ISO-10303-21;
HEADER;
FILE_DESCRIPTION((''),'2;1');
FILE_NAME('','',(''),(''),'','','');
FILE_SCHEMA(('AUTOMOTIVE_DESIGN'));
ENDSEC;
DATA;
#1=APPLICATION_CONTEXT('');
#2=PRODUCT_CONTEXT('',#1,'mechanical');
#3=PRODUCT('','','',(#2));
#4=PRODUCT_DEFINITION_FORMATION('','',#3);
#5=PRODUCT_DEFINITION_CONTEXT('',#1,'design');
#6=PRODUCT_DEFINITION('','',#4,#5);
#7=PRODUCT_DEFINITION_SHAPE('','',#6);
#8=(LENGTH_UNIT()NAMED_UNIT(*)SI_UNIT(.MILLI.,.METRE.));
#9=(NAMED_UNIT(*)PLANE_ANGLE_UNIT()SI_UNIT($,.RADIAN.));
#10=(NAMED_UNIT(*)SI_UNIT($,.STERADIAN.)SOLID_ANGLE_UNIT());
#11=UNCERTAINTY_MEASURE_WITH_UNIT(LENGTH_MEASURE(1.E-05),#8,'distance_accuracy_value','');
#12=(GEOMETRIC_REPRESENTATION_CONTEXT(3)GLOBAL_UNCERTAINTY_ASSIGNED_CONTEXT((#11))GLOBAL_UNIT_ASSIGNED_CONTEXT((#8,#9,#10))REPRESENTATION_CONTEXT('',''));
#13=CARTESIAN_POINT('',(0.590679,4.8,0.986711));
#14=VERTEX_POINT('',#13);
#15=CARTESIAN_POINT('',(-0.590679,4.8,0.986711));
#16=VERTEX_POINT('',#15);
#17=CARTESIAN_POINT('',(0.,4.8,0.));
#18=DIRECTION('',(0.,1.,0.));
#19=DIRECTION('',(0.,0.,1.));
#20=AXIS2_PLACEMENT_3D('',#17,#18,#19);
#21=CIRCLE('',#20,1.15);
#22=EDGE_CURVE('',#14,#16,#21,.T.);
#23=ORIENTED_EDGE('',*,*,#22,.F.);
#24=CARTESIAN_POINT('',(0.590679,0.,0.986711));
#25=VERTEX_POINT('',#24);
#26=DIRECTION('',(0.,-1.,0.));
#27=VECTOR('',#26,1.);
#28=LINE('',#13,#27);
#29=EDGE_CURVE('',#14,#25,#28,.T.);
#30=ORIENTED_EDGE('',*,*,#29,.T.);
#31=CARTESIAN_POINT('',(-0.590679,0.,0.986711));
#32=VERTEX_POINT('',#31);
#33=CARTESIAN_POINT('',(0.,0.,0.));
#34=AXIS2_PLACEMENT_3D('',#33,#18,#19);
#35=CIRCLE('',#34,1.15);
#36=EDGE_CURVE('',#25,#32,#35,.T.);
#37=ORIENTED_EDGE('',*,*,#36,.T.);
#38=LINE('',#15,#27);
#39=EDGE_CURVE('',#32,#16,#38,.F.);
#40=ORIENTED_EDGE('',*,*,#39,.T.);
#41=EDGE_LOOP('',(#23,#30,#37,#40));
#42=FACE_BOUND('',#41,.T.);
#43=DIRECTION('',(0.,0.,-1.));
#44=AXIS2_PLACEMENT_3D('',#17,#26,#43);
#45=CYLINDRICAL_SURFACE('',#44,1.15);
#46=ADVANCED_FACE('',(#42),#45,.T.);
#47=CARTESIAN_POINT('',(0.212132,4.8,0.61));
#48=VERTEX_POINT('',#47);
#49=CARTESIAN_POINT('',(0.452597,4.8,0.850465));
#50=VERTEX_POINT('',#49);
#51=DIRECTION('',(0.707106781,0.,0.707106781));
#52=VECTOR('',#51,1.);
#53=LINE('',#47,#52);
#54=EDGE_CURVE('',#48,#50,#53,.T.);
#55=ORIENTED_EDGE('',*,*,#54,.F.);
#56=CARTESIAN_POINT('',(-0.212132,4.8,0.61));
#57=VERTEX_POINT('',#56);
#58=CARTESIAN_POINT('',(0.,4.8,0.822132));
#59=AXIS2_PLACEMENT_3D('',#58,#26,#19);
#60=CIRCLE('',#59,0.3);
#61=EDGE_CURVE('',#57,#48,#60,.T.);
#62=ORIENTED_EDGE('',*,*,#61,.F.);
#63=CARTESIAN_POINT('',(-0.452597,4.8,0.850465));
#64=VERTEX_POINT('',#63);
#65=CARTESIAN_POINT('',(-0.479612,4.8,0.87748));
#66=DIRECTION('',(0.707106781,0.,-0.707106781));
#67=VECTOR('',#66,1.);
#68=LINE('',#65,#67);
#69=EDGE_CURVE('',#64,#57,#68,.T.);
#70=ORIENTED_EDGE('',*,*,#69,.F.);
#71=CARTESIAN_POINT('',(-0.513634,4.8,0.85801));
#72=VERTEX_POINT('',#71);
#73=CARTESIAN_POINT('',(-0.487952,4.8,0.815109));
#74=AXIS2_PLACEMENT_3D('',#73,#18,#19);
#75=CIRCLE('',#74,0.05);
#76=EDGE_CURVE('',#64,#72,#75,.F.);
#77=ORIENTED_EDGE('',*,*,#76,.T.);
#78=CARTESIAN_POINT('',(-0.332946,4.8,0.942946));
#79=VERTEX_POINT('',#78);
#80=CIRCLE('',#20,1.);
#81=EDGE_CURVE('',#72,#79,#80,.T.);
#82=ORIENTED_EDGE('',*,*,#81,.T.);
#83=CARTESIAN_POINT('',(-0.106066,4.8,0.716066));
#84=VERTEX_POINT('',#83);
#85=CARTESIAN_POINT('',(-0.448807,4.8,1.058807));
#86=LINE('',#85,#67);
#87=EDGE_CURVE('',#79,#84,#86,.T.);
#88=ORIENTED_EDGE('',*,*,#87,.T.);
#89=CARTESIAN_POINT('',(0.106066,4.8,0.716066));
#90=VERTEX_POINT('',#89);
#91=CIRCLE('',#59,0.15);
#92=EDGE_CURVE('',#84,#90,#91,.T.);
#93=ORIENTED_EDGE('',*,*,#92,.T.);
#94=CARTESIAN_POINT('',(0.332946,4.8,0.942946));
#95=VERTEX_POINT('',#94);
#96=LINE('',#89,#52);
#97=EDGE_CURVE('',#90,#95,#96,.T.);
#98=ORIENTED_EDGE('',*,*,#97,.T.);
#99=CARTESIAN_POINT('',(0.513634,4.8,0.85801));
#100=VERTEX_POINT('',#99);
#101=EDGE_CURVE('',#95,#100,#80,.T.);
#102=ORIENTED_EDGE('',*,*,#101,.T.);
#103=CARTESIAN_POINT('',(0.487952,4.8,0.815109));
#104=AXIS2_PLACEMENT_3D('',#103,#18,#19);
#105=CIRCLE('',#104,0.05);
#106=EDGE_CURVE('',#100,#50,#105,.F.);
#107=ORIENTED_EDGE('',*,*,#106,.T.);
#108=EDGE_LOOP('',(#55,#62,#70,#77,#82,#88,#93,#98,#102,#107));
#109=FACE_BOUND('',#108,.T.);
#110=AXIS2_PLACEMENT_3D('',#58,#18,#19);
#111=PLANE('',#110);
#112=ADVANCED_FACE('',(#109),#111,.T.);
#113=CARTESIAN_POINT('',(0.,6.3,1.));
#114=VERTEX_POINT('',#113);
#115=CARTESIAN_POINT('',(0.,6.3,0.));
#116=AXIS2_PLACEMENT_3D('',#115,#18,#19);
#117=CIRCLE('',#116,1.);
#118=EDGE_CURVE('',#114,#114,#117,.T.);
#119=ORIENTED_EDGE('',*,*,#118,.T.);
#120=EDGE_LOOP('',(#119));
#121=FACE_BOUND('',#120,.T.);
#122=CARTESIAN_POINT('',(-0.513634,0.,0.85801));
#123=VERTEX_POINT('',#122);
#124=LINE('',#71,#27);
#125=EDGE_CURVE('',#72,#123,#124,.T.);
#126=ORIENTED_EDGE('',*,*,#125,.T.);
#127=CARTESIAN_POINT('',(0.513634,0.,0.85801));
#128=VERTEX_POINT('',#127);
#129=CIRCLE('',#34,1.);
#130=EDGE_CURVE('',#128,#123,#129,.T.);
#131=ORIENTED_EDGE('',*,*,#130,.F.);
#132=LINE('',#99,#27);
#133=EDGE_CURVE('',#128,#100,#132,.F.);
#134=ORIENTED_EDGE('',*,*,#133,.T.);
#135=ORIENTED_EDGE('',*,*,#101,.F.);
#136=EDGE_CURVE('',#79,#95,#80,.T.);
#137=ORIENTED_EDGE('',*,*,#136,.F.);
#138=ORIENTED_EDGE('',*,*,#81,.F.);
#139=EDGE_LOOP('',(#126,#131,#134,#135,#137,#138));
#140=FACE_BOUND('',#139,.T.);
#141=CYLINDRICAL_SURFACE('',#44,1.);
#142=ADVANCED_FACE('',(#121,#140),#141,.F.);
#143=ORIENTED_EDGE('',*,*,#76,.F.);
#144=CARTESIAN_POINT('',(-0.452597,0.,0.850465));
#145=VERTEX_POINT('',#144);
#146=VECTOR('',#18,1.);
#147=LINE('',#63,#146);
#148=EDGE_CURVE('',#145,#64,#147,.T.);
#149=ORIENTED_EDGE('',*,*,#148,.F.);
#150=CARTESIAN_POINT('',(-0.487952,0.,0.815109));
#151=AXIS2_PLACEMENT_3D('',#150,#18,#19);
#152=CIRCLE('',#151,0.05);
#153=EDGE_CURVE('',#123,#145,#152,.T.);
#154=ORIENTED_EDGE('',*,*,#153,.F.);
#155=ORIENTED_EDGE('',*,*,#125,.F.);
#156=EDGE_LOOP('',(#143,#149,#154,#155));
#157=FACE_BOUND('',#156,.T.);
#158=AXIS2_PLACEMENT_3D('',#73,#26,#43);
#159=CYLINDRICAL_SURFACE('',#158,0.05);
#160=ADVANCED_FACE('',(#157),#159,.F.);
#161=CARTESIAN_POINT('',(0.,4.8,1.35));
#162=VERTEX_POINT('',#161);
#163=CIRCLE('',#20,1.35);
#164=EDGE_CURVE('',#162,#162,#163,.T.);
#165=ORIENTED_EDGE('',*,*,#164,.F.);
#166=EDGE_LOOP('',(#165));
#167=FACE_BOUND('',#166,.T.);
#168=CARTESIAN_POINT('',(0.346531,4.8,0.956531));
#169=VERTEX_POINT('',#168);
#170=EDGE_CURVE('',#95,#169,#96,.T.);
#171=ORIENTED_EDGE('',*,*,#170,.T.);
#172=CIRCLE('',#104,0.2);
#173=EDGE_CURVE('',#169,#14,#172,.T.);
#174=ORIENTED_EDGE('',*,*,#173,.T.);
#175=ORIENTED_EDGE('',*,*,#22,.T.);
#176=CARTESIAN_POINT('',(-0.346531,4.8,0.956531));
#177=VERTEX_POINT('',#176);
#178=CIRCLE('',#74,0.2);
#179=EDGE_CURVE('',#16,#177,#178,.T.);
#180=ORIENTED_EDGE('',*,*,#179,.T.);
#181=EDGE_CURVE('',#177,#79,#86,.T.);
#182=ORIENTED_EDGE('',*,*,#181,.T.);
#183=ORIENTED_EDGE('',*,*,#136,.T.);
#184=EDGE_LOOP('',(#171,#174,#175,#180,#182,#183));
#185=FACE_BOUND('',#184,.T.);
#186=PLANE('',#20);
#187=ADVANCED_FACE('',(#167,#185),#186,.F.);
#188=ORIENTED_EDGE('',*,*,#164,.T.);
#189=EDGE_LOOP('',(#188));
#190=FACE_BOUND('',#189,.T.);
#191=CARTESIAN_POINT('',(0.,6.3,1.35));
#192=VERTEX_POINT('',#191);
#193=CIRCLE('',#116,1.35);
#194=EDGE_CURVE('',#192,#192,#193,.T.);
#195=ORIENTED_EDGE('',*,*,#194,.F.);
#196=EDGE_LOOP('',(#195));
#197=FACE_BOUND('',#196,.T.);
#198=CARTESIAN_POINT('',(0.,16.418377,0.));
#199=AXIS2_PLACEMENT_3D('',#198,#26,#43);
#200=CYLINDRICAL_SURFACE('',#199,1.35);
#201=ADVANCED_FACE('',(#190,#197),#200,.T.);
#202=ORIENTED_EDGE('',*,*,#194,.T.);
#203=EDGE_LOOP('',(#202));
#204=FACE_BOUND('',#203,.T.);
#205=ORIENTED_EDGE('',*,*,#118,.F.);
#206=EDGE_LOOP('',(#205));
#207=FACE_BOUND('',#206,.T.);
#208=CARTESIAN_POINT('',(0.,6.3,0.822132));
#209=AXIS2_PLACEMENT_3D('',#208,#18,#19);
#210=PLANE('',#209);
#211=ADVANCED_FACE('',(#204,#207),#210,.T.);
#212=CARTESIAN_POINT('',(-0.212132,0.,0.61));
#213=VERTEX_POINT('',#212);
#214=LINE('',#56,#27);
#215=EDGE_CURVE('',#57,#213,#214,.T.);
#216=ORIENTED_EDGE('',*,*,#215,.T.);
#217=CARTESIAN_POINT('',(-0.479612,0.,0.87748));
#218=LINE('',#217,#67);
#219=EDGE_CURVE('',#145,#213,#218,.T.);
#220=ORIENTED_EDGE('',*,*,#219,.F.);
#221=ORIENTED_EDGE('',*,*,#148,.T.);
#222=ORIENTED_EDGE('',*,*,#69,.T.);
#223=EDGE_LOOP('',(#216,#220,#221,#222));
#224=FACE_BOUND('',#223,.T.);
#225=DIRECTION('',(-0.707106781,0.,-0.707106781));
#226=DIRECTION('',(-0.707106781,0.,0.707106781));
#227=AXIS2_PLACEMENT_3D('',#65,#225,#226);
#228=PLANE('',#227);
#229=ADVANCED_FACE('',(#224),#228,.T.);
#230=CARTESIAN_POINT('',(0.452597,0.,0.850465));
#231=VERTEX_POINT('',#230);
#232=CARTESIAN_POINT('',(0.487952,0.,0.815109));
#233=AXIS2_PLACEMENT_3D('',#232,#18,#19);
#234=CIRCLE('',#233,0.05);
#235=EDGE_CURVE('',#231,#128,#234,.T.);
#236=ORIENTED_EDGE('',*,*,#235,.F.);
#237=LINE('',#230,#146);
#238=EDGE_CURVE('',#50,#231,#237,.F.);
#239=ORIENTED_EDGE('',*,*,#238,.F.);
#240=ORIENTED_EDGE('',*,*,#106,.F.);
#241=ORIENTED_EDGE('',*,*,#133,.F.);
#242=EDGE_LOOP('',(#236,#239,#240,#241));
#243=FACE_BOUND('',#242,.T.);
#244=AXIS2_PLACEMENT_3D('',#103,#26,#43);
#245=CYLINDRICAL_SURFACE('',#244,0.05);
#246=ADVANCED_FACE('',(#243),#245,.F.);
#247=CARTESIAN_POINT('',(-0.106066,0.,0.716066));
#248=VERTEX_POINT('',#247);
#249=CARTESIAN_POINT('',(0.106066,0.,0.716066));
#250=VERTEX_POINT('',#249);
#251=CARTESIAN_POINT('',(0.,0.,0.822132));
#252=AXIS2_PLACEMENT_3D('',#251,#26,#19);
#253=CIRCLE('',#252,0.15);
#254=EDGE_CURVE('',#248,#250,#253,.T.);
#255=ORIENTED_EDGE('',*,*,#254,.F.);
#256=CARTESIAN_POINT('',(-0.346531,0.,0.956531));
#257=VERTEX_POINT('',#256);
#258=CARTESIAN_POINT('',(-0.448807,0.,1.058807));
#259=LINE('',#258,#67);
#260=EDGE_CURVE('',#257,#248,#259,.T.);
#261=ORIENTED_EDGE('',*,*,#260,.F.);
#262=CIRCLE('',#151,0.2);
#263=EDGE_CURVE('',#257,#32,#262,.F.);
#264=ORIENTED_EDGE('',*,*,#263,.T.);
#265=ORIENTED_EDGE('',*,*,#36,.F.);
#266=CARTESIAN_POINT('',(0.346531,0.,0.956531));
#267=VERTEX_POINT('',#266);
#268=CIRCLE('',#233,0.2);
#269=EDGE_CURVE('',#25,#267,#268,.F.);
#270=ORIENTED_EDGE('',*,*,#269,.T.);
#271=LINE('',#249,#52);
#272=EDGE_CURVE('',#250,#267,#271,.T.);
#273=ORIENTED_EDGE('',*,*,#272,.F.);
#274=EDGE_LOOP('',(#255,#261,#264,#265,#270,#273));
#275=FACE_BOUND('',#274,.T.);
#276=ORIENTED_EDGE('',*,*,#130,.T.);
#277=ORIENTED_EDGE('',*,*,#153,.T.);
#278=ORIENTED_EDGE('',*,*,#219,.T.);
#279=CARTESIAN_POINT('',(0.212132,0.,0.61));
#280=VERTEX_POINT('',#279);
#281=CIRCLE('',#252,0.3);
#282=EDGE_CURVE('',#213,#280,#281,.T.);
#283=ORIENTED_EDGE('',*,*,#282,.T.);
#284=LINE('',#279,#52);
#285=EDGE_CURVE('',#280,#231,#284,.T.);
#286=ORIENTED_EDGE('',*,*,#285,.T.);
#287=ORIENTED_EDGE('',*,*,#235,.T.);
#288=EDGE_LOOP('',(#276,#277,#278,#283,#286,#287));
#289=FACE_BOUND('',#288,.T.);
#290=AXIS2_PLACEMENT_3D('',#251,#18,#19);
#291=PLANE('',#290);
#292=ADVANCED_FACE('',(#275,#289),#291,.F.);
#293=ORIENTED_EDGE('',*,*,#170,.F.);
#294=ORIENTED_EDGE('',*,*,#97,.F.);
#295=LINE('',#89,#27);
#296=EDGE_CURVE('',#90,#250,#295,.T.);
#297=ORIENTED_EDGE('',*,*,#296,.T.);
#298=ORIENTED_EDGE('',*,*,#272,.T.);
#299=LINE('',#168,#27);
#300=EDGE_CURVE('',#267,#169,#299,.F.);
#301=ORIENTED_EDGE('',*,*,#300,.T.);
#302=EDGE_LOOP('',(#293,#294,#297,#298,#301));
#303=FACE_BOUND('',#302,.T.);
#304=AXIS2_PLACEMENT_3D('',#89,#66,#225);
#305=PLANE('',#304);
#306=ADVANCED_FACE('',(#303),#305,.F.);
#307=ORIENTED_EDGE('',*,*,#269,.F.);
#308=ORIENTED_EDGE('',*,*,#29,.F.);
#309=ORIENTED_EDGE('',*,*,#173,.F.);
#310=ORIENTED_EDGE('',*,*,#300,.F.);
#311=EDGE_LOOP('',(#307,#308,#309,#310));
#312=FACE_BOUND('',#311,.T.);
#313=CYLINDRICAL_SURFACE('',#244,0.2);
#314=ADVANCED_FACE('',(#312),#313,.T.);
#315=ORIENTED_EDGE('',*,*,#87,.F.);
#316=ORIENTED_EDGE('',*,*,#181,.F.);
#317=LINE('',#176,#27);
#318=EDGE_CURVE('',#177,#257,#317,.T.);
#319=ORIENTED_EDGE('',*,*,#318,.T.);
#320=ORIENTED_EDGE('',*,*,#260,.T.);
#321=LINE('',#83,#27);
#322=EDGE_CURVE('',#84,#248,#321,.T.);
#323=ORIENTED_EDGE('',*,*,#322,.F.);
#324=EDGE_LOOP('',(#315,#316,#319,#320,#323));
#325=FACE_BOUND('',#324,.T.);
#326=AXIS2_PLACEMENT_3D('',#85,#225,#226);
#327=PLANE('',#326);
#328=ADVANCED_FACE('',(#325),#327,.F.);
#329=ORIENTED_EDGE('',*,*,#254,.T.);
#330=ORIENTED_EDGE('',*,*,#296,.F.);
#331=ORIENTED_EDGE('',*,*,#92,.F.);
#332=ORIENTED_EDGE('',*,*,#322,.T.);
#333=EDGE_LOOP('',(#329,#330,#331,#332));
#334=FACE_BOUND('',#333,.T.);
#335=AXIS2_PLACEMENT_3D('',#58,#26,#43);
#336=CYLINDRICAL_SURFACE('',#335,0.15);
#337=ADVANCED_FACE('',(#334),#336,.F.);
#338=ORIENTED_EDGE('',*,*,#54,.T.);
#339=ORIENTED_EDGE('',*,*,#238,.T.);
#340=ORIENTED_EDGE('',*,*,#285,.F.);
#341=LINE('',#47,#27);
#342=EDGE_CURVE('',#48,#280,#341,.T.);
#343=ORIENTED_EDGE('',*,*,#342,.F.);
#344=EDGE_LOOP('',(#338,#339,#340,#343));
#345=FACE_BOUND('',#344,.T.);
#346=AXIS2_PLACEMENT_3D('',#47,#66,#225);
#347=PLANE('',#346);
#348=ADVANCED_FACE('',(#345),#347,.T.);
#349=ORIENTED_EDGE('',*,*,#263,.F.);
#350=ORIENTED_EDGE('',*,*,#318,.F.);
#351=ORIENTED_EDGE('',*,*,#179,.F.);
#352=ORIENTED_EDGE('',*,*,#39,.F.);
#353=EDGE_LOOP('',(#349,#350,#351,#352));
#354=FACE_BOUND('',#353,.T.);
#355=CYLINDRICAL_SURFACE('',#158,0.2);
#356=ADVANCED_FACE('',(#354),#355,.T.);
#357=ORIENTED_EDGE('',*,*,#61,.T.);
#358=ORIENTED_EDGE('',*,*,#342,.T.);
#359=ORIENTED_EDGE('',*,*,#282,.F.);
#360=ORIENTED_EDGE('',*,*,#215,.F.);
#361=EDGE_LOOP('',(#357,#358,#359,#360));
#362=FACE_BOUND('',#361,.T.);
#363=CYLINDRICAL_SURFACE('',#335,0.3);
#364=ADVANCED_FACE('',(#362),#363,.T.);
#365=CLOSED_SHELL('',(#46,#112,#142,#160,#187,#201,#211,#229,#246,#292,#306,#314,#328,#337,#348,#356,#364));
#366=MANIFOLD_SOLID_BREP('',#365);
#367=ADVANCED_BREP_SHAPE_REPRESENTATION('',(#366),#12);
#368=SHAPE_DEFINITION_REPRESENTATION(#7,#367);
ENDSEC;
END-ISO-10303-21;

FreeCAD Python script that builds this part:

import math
import FreeCAD as App
import Part
import Sketcher

V = App.Vector
Q = App.Units.Quantity


def edges_at(feature, points):
    """Names of the edges that pass closest to the given points."""
    edges = feature.Shape.Edges
    near = lambda p: min(range(len(edges)), key=lambda i: edges[i].distToShape(Part.Vertex(*p))[0])
    return sorted({f"Edge{near(p) + 1}" for p in points})

doc = App.newDocument("Part")
body = doc.addObject("PartDesign::Body", "Body")

sketch1 = doc.addObject("Sketcher::SketchObject", "Sketch")
body.addObject(sketch1)
sketch1.AttachmentSupport = (doc.XZ_Plane, [""])
sketch1.MapMode = "FlatFace"
sketch1.addGeometry(Part.LineSegment(V(-0.448807, 1.058807, 0), V(-0.106066, 0.716066, 0)), False)
sketch1.addGeometry(Part.ArcOfCircle(Part.Circle(V(0, 0.822132, 0), V(0, 0, 1), 0.15), math.radians(-135), math.radians(-45)), False)
sketch1.addGeometry(Part.LineSegment(V(0.106066, 0.716066, 0), V(0.448807, 1.058807, 0)), False)
sketch1.addGeometry(Part.ArcOfCircle(Part.Circle(V(0, 0, 0), V(0, 0, 1), 1.15), math.radians(112.971111), math.radians(427.028889)), False)
sketch1.addGeometry(Part.LineSegment(V(-0.212132, 0.61, 0), V(-0.479612, 0.87748, 0)), False)
sketch1.addGeometry(Part.ArcOfCircle(Part.Circle(V(0, 0, 0), V(0, 0, 1), 1), math.radians(118.660094), math.radians(421.339906)), False)
sketch1.addGeometry(Part.LineSegment(V(0.479612, 0.87748, 0), V(0.212132, 0.61, 0)), False)
sketch1.addGeometry(Part.ArcOfCircle(Part.Circle(V(0, 0.822132, 0), V(0, 0, 1), 0.3), math.radians(-135), math.radians(-45)), False)
sketch1.addConstraint(Sketcher.Constraint("Tangent", 0, 2, 1, 1))
sketch1.addConstraint(Sketcher.Constraint("Tangent", 1, 2, 2, 1))
sketch1.addConstraint(Sketcher.Constraint("Coincident", 2, 2, 3, 2))
sketch1.addConstraint(Sketcher.Constraint("Coincident", 3, 1, 0, 1))
sketch1.addConstraint(Sketcher.Constraint("Coincident", 4, 2, 5, 1))
sketch1.addConstraint(Sketcher.Constraint("Coincident", 5, 2, 6, 1))
sketch1.addConstraint(Sketcher.Constraint("Tangent", 6, 2, 7, 2))
sketch1.addConstraint(Sketcher.Constraint("Tangent", 7, 1, 4, 1))
sketch1.addConstraint(Sketcher.Constraint("Coincident", 3, 3, -1, 1))
sketch1.addConstraint(Sketcher.Constraint("Coincident", 5, 3, -1, 1))
sketch1.addConstraint(Sketcher.Constraint("Coincident", 7, 3, 1, 3))
sketch1.addConstraint(Sketcher.Constraint("Symmetric", 0, 2, 1, 2, -2))
sketch1.addConstraint(Sketcher.Constraint("Perpendicular", 0, 2))
sketch1.addConstraint(Sketcher.Constraint("Perpendicular", 2, 4))
sketch1.addConstraint(Sketcher.Constraint("Perpendicular", 4, 6))
sketch1.addConstraint(Sketcher.Constraint("Radius", 5, Q("1 mm")))
sketch1.addConstraint(Sketcher.Constraint("Radius", 7, Q("0.3 mm")))
sketch1.addConstraint(Sketcher.Constraint("Radius", 1, Q("0.15 mm")))
sketch1.addConstraint(Sketcher.Constraint("Radius", 3, Q("1.15 mm")))
sketch1.addConstraint(Sketcher.Constraint("DistanceY", -1, 1, 6, 2, Q("0.61 mm")))
pad1 = doc.addObject("PartDesign::Pad", "Pad")
body.addObject(pad1)
pad1.Profile = sketch1
pad1.Length = 4.8
pad1.Reversed = True
doc.recompute()

fillet = doc.addObject("PartDesign::Fillet", "Fillet")
body.addObject(fillet)
fillet.Base = (pad1, edges_at(pad1, [(0.48, 2.4, 0.877), (-0.48, 2.4, 0.877)]))
fillet.Radius = 0.05
doc.recompute()

fillet2 = doc.addObject("PartDesign::Fillet", "Fillet001")
body.addObject(fillet2)
fillet2.Base = (fillet, edges_at(fillet, [(-0.449, 2.4, 1.059), (0.449, 2.4, 1.059)]))
fillet2.Radius = 0.2

sketch2 = doc.addObject("Sketcher::SketchObject", "Sketch001")
body.addObject(sketch2)
sketch2.AttachmentSupport = (doc.XZ_Plane, [""])
sketch2.MapMode = "FlatFace"
sketch2.AttachmentOffset = App.Placement(V(0, 0, -4.8), App.Rotation())
sketch2.addGeometry(Part.Circle(V(0, 0, 0), V(0, 0, 1), 1.35), False)
sketch2.addGeometry(Part.Circle(V(0, 0, 0), V(0, 0, 1), 1), False)
sketch2.addConstraint(Sketcher.Constraint("Coincident", 0, 3, -1, 1))
sketch2.addConstraint(Sketcher.Constraint("Coincident", 1, 3, -1, 1))
sketch2.addConstraint(Sketcher.Constraint("Diameter", 1, Q("2 mm")))
sketch2.addConstraint(Sketcher.Constraint("Diameter", 0, Q("2.7 mm")))
pad2 = doc.addObject("PartDesign::Pad", "Pad001")
body.addObject(pad2)
pad2.Profile = sketch2
pad2.Length = 1.5
pad2.Reversed = True

doc.recompute()
